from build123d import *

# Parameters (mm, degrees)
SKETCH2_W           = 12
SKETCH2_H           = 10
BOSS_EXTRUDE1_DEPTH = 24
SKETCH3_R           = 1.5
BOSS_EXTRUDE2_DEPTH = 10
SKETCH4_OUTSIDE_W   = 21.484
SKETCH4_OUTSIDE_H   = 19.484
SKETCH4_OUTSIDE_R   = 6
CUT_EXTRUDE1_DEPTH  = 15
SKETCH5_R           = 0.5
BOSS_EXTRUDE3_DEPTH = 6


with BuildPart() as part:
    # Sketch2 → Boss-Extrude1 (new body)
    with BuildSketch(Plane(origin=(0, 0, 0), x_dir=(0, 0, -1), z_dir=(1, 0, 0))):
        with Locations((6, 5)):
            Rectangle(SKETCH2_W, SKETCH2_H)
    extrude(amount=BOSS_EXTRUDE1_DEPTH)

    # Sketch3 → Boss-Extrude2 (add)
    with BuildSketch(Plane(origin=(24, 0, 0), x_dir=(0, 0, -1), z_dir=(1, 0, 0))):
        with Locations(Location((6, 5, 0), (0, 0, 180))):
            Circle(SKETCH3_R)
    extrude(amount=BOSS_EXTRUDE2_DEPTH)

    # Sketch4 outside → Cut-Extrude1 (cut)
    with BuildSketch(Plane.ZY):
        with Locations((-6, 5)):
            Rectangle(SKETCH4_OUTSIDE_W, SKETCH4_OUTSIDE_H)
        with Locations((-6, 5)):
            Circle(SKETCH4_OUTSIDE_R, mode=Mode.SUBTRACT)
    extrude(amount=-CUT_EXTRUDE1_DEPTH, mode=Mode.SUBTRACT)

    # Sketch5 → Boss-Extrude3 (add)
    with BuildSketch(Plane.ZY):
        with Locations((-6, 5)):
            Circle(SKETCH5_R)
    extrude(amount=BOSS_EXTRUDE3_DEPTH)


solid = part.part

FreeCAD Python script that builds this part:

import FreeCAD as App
import Part
import Sketcher


def add_polygon(sketch, points):
    """Adds a closed chain of lines whose ends are joined by coincident constraints."""
    first, n = sketch.GeometryCount, len(points)
    for a, b in zip(points, points[1:] + points[:1]):
        sketch.addGeometry(Part.LineSegment(App.Vector(*a, 0), App.Vector(*b, 0)), False)
    for i in range(n):
        sketch.addConstraint(Sketcher.Constraint("Coincident", first + i, 2, first + (i + 1) % n, 1))

doc = App.newDocument("Part")
body = doc.addObject("PartDesign::Body", "Body")

# Sketch on YZ plane
sketch1 = doc.addObject("Sketcher::SketchObject", "Sketch")
body.addObject(sketch1)
sketch1.AttachmentSupport = (doc.YZ_Plane, [""])
sketch1.MapMode = "FlatFace"
add_polygon(sketch1, [(10, 0), (0, 0), (0, -12), (10, -12)])  # lines 0-3
sketch1.addConstraint(Sketcher.Constraint("Horizontal", 0))
sketch1.addConstraint(Sketcher.Constraint("Vertical", 1))
sketch1.addConstraint(Sketcher.Constraint("Horizontal", 2))
sketch1.addConstraint(Sketcher.Constraint("Vertical", 3))
sketch1.addConstraint(Sketcher.Constraint("Coincident", 0, 2, -1, 1))
sketch1.addConstraint(Sketcher.Constraint("DistanceX", 0, 2, 0, 1, 10.0))
sketch1.addConstraint(Sketcher.Constraint("DistanceY", 1, 2, 1, 1, 12.0))
pad1 = doc.addObject("PartDesign::Pad", "Pad")
body.addObject(pad1)
pad1.Profile = sketch1
pad1.Length = 24

# Sketch on YZ plane
sketch2 = doc.addObject("Sketcher::SketchObject", "Sketch001")
body.addObject(sketch2)
sketch2.AttachmentSupport = (doc.YZ_Plane, [""])
sketch2.MapMode = "FlatFace"
sketch2.AttachmentOffset = App.Placement(App.Vector(0, 0, 24), App.Rotation())
sketch2.addGeometry(Part.Circle(App.Vector(5, -6, 0), App.Vector(0, 0, 1), 1.5), False)
sketch2.addConstraint(Sketcher.Constraint("Diameter", 0, 3.0))
sketch2.addConstraint(Sketcher.Constraint("DistanceX", -1, 1, 0, 3, 5.0))
sketch2.addConstraint(Sketcher.Constraint("DistanceY", 0, 3, -1, 1, 6.0))
pad2 = doc.addObject("PartDesign::Pad", "Pad001")
body.addObject(pad2)
pad2.Profile = sketch2
pad2.Length = 10

# Sketch on YZ plane
sketch3 = doc.addObject("Sketcher::SketchObject", "Sketch002")
body.addObject(sketch3)
sketch3.AttachmentSupport = (doc.YZ_Plane, [""])
sketch3.MapMode = "FlatFace"
add_polygon(sketch3, [(15, -17), (-5, -17), (-5, 5), (15, 5)])  # lines 0-3
sketch3.addGeometry(Part.Circle(App.Vector(5, -6, 0), App.Vector(0, 0, 1), 6), False)  # 4
sketch3.addConstraint(Sketcher.Constraint("Horizontal", 0))
sketch3.addConstraint(Sketcher.Constraint("Vertical", 1))
sketch3.addConstraint(Sketcher.Constraint("Horizontal", 2))
sketch3.addConstraint(Sketcher.Constraint("Vertical", 3))
sketch3.addConstraint(Sketcher.Constraint("Diameter", 4, 12.0))
sketch3.addConstraint(Sketcher.Constraint("DistanceX", -1, 1, 4, 3, 5.0))
sketch3.addConstraint(Sketcher.Constraint("DistanceY", 4, 3, -1, 1, 6.0))
sketch3.addConstraint(Sketcher.Constraint("DistanceX", 0, 2, 0, 1, 19.484))
sketch3.addConstraint(Sketcher.Constraint("DistanceY", 1, 1, 1, 2, 21.484))
sketch3.addConstraint(Sketcher.Constraint("DistanceX", 0, 2, -1, 1, 4.742))
sketch3.addConstraint(Sketcher.Constraint("DistanceY", 0, 2, -1, 1, 16.742))
pocket1 = doc.addObject("PartDesign::Pocket", "Pocket")
body.addObject(pocket1)
pocket1.Profile = sketch3
pocket1.Length = 15
pocket1.Reversed = True

# Sketch on YZ plane
sketch4 = doc.addObject("Sketcher::SketchObject", "Sketch003")
body.addObject(sketch4)
sketch4.AttachmentSupport = (doc.YZ_Plane, [""])
sketch4.MapMode = "FlatFace"
sketch4.addGeometry(Part.Circle(App.Vector(5, -6, 0), App.Vector(0, 0, 1), 0.5), False)
sketch4.addConstraint(Sketcher.Constraint("Diameter", 0, 1.0))
sketch4.addConstraint(Sketcher.Constraint("DistanceX", -1, 1, 0, 3, 5.0))
sketch4.addConstraint(Sketcher.Constraint("DistanceY", 0, 3, -1, 1, 6.0))
pad3 = doc.addObject("PartDesign::Pad", "Pad002")
body.addObject(pad3)
pad3.Profile = sketch4
pad3.Length = 6
pad3.Reversed = True

doc.recompute()
